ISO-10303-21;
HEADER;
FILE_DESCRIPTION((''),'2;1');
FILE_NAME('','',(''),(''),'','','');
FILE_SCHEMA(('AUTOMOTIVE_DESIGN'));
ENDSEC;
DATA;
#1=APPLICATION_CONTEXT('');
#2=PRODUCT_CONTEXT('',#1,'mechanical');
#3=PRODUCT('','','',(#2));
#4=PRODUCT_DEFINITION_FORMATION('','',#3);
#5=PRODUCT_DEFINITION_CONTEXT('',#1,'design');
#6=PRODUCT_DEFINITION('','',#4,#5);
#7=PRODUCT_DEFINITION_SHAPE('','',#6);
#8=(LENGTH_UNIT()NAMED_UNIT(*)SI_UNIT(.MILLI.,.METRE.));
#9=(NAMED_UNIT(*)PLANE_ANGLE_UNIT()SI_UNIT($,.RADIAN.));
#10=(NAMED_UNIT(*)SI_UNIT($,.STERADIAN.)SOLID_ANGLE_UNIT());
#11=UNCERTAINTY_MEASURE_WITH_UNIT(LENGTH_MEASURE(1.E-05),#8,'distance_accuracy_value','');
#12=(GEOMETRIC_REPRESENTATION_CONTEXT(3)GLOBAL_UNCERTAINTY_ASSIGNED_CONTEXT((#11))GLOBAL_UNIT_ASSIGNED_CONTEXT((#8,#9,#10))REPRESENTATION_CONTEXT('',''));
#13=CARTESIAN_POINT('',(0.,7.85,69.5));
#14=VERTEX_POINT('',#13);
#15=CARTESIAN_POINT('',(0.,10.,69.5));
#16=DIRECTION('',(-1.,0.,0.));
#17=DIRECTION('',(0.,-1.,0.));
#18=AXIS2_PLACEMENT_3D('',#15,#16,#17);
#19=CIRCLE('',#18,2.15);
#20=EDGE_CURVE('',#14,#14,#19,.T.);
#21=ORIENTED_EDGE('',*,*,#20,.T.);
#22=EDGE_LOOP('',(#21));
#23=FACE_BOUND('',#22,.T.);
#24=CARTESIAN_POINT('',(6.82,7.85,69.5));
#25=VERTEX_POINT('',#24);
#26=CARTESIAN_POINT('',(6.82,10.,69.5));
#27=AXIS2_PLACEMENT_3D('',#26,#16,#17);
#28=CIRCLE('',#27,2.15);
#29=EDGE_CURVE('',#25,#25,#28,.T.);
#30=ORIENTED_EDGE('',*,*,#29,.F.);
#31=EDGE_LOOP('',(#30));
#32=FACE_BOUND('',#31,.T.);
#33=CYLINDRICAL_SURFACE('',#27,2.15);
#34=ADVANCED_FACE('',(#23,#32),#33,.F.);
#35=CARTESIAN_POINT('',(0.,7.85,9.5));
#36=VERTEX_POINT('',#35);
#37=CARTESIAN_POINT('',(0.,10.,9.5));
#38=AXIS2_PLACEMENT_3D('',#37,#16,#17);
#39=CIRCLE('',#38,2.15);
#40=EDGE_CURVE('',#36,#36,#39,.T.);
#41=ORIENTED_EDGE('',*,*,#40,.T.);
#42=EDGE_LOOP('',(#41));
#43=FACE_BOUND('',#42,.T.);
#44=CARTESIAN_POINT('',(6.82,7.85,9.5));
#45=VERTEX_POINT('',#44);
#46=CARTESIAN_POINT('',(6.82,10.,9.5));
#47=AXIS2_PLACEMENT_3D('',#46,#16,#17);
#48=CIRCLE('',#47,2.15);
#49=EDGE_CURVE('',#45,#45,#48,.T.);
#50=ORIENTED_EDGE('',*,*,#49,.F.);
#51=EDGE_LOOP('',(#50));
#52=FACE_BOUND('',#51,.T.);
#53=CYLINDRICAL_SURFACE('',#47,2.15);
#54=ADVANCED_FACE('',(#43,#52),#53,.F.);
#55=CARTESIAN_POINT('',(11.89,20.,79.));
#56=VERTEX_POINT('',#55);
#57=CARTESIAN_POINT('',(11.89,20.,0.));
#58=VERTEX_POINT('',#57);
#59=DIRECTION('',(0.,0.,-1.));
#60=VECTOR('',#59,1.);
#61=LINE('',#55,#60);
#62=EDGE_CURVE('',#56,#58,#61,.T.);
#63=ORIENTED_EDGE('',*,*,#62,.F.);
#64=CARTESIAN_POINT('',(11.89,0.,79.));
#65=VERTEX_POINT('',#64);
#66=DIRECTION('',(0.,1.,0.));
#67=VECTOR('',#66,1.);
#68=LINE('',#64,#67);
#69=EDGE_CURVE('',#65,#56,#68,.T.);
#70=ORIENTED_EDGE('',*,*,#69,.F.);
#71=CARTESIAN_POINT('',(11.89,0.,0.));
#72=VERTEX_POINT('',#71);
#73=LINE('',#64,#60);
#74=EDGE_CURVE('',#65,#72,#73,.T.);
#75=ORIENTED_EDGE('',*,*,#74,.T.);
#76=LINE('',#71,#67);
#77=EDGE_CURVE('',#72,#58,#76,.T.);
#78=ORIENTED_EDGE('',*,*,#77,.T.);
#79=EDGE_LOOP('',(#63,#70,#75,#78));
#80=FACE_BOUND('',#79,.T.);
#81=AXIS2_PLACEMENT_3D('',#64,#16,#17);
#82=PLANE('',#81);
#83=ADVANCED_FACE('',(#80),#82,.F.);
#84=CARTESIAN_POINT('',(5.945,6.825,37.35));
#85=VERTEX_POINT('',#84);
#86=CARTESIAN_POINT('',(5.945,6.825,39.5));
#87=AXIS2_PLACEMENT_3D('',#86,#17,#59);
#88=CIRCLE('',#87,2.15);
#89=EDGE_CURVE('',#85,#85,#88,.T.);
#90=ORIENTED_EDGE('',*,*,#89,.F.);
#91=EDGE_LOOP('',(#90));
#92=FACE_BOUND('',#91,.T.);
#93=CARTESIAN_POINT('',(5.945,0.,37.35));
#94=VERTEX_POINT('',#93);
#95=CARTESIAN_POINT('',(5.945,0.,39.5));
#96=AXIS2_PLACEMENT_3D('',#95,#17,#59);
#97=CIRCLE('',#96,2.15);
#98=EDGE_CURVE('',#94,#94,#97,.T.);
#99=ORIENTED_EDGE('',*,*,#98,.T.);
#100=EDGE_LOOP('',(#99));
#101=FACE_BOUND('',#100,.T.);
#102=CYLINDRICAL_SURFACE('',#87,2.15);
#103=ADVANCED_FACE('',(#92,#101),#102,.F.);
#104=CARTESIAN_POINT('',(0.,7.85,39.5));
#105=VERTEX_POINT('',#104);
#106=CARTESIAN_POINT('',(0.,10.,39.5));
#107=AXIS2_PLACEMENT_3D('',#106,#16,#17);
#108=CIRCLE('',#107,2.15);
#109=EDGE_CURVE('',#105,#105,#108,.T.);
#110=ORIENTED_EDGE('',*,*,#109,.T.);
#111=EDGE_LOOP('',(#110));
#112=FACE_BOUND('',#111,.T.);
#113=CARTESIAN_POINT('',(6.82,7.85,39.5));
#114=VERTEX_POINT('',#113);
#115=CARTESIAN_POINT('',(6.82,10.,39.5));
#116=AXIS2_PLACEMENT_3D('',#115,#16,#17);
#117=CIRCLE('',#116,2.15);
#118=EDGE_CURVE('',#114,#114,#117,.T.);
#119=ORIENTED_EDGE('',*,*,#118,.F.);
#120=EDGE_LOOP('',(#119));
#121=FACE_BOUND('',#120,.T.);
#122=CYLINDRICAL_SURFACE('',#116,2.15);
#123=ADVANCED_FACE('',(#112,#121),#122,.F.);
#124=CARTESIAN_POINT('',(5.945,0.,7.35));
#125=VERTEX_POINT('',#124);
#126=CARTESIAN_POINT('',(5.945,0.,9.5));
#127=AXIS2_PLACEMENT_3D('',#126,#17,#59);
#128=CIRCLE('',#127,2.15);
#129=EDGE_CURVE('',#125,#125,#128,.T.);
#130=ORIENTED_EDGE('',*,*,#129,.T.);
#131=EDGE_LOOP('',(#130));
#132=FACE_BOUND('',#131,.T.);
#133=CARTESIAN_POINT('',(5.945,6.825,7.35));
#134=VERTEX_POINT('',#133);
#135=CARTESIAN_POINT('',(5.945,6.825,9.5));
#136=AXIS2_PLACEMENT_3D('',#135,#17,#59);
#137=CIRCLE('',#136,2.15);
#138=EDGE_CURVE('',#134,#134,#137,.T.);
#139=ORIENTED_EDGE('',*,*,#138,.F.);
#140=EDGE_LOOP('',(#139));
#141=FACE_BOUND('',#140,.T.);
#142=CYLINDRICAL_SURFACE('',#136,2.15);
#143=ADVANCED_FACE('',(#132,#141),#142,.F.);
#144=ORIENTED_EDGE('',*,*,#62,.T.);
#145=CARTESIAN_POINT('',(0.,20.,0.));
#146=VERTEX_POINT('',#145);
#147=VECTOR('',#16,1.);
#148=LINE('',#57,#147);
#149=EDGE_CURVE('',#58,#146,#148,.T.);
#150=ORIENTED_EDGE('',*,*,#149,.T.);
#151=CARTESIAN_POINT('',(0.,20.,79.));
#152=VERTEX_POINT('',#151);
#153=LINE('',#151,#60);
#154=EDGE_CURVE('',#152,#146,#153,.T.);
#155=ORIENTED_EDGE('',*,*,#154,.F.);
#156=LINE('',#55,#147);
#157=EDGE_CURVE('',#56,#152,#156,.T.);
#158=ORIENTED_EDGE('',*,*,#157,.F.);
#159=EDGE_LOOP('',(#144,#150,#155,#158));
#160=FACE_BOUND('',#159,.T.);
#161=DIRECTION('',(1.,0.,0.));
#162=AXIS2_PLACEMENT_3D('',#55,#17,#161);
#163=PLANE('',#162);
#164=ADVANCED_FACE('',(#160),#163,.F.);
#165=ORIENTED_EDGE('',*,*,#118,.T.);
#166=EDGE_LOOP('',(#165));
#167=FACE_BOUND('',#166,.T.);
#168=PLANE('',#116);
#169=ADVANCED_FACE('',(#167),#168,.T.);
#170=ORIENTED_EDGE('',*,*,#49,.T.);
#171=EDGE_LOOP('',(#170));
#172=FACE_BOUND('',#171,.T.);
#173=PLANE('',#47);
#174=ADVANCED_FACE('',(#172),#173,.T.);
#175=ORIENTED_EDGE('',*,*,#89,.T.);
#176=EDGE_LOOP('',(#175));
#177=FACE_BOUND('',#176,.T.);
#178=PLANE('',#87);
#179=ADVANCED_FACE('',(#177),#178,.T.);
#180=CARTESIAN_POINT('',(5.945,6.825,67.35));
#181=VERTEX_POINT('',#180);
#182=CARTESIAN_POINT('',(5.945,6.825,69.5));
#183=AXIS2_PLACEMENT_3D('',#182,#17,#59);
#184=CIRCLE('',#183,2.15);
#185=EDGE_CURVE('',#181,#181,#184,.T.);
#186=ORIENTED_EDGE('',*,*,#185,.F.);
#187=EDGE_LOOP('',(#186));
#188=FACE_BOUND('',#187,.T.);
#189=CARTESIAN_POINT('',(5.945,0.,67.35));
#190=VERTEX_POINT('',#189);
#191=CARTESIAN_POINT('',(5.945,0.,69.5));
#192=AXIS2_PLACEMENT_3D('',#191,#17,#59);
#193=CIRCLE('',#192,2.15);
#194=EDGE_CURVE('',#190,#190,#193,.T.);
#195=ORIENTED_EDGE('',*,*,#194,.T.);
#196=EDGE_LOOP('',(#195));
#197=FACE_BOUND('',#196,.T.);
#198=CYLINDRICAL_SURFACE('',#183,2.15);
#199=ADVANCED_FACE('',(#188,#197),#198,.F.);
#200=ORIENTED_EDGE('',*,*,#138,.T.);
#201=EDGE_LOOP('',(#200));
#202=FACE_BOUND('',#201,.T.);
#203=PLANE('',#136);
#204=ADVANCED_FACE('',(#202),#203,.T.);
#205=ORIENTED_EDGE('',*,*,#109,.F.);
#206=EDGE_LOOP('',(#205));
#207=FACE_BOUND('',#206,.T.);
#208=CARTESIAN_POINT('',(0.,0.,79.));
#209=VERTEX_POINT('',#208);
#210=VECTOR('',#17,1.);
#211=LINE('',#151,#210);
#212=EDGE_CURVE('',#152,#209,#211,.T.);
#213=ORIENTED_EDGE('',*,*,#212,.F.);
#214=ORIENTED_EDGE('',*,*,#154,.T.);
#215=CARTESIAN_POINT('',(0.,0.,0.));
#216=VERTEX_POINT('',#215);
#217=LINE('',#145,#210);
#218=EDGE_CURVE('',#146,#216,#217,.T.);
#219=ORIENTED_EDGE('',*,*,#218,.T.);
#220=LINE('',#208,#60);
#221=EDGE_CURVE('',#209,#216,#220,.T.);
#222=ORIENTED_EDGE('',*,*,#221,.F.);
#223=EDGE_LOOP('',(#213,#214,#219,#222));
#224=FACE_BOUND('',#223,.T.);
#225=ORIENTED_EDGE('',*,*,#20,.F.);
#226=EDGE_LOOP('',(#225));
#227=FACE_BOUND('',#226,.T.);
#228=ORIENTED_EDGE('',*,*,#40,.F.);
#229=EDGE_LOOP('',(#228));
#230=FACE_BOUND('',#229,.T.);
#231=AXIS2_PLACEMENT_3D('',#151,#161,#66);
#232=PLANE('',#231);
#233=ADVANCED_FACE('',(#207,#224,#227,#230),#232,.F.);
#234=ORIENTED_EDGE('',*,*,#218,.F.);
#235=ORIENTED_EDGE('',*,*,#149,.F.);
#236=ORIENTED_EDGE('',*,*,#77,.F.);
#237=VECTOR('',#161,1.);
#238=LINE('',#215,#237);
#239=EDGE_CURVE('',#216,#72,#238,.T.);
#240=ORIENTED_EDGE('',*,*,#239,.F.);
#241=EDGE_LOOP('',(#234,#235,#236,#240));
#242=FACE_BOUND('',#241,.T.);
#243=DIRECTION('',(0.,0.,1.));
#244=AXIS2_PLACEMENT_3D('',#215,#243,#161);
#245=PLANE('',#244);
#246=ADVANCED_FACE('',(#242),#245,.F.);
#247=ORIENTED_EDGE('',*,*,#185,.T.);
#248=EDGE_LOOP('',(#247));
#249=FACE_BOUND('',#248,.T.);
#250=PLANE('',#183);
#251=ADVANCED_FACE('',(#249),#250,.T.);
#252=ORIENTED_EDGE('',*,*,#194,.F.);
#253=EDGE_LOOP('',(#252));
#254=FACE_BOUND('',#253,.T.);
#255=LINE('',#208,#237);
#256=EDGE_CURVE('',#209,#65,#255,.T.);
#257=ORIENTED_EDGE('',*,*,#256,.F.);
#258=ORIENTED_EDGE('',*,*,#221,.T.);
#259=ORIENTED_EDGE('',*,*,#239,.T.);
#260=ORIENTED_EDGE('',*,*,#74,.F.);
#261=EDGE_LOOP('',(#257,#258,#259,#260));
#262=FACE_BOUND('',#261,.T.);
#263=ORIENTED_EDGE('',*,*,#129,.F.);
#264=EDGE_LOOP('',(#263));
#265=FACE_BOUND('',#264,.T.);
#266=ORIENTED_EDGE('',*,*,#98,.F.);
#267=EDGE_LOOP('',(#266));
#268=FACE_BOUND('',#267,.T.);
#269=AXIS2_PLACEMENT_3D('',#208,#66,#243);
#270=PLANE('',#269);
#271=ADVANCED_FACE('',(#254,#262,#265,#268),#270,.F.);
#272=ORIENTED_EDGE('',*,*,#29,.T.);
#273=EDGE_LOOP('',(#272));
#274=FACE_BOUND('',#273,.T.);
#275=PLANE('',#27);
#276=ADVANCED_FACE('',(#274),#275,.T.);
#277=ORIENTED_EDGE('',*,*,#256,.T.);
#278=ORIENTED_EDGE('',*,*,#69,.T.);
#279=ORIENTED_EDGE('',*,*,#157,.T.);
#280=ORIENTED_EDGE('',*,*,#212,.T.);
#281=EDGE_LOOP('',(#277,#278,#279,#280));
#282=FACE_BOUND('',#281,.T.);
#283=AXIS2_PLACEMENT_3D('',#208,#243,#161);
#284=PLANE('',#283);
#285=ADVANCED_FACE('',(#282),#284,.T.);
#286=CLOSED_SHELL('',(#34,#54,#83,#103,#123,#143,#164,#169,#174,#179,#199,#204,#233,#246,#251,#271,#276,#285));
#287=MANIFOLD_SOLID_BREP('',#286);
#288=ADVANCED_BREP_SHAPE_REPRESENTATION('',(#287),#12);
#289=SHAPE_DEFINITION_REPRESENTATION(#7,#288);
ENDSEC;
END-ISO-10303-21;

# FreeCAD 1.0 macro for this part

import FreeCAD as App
import Part
import Sketcher
Q = App.Units.Quantity

doc = App.newDocument("Part")
body = doc.addObject("PartDesign::Body", "Body")

# Sketch on XY plane
sketch1 = doc.addObject("Sketcher::SketchObject", "Sketch")
body.addObject(sketch1)
sketch1.AttachmentSupport = (doc.XY_Plane, [""])
sketch1.MapMode = "FlatFace"
sketch1.addGeometry(Part.LineSegment(App.Vector(0, 20, 0), App.Vector(0, 0, 0)), False)
sketch1.addGeometry(Part.LineSegment(App.Vector(0, 0, 0), App.Vector(12, 0, 0)), False)
sketch1.addGeometry(Part.LineSegment(App.Vector(12, 0, 0), App.Vector(12, 20, 0)), False)
sketch1.addGeometry(Part.LineSegment(App.Vector(12, 20, 0), App.Vector(0, 20, 0)), False)
sketch1.addConstraint(Sketcher.Constraint("Coincident", 0, 2, 1, 1))
sketch1.addConstraint(Sketcher.Constraint("Coincident", 1, 2, 2, 1))
sketch1.addConstraint(Sketcher.Constraint("Coincident", 2, 2, 3, 1))
sketch1.addConstraint(Sketcher.Constraint("Coincident", 3, 2, 0, 1))
sketch1.addConstraint(Sketcher.Constraint("Vertical", 0))
sketch1.addConstraint(Sketcher.Constraint("Horizontal", 1))
sketch1.addConstraint(Sketcher.Constraint("Vertical", 2))
sketch1.addConstraint(Sketcher.Constraint("Horizontal", 3))
sketch1.addConstraint(Sketcher.Constraint("Coincident", 0, 2, -1, 1))
sketch1.addConstraint(Sketcher.Constraint("DistanceY", 0, 2, 0, 1, Q("20 mm")))
sketch1.addConstraint(Sketcher.Constraint("DistanceX", 1, 1, 1, 2, Q("11.89 mm")))
pad1 = doc.addObject("PartDesign::Pad", "Pad")
body.addObject(pad1)
pad1.Profile = sketch1
pad1.Length = 79

# Sketch on YZ plane
sketch2 = doc.addObject("Sketcher::SketchObject", "Sketch001")
body.addObject(sketch2)
sketch2.AttachmentSupport = (doc.YZ_Plane, [""])
sketch2.MapMode = "FlatFace"
sketch2.addGeometry(Part.Circle(App.Vector(10, 39.5, 0), App.Vector(0, 0, 1), 2.1), False)
sketch2.addGeometry(Part.Circle(App.Vector(10, 9.5, 0), App.Vector(0, 0, 1), 2.1), False)
sketch2.addGeometry(Part.Circle(App.Vector(10, 69.5, 0), App.Vector(0, 0, 1), 2.1), False)
sketch2.addConstraint(Sketcher.Constraint("Equal", 0, 1))
sketch2.addConstraint(Sketcher.Constraint("Equal", 1, 2))
sketch2.addConstraint(Sketcher.Constraint("Vertical", 0, 3, 1, 3))
sketch2.addConstraint(Sketcher.Constraint("Vertical", 1, 3, 2, 3))
sketch2.addConstraint(Sketcher.Constraint("Diameter", 0, Q("4.3 mm")))
sketch2.addConstraint(Sketcher.Constraint("DistanceX", -1, 1, 0, 3, Q("10 mm")))
sketch2.addConstraint(Sketcher.Constraint("DistanceY", 1, 3, 0, 3, Q("30 mm")))
sketch2.addConstraint(Sketcher.Constraint("DistanceY", 0, 3, 2, 3, Q("30 mm")))
sketch2.addConstraint(Sketcher.Constraint("DistanceY", -1, 1, 0, 3, Q("39.5 mm")))
pocket1 = doc.addObject("PartDesign::Pocket", "Pocket")
body.addObject(pocket1)
pocket1.Profile = sketch2
pocket1.Length = 6.82
pocket1.Reversed = True

# Sketch on XZ plane
sketch3 = doc.addObject("Sketcher::SketchObject", "Sketch002")
body.addObject(sketch3)
sketch3.AttachmentSupport = (doc.XZ_Plane, [""])
sketch3.MapMode = "FlatFace"
sketch3.addGeometry(Part.Circle(App.Vector(5.9, 39.5, 0), App.Vector(0, 0, 1), 2.1), False)
sketch3.addGeometry(Part.Circle(App.Vector(5.9, 69.5, 0), App.Vector(0, 0, 1), 2.1), False)
sketch3.addGeometry(Part.Circle(App.Vector(5.9, 9.5, 0), App.Vector(0, 0, 1), 2.1), False)
sketch3.addConstraint(Sketcher.Constraint("Equal", 0, 1))
sketch3.addConstraint(Sketcher.Constraint("Equal", 1, 2))
sketch3.addConstraint(Sketcher.Constraint("Vertical", 0, 3, 1, 3))
sketch3.addConstraint(Sketcher.Constraint("Vertical", 1, 3, 2, 3))
sketch3.addConstraint(Sketcher.Constraint("Diameter", 0, Q("4.3 mm")))
sketch3.addConstraint(Sketcher.Constraint("DistanceY", 0, 3, 1, 3, Q("30 mm")))
sketch3.addConstraint(Sketcher.Constraint("DistanceY", 2, 3, 0, 3, Q("30 mm")))
sketch3.addConstraint(Sketcher.Constraint("DistanceY", -1, 1, 0, 3, Q("39.5 mm")))
sketch3.addConstraint(Sketcher.Constraint("DistanceX", -1, 1, 0, 3, Q("5.945 mm")))
pocket2 = doc.addObject("PartDesign::Pocket", "Pocket001")
body.addObject(pocket2)
pocket2.Profile = sketch3
pocket2.Length = 6.825

doc.recompute()
